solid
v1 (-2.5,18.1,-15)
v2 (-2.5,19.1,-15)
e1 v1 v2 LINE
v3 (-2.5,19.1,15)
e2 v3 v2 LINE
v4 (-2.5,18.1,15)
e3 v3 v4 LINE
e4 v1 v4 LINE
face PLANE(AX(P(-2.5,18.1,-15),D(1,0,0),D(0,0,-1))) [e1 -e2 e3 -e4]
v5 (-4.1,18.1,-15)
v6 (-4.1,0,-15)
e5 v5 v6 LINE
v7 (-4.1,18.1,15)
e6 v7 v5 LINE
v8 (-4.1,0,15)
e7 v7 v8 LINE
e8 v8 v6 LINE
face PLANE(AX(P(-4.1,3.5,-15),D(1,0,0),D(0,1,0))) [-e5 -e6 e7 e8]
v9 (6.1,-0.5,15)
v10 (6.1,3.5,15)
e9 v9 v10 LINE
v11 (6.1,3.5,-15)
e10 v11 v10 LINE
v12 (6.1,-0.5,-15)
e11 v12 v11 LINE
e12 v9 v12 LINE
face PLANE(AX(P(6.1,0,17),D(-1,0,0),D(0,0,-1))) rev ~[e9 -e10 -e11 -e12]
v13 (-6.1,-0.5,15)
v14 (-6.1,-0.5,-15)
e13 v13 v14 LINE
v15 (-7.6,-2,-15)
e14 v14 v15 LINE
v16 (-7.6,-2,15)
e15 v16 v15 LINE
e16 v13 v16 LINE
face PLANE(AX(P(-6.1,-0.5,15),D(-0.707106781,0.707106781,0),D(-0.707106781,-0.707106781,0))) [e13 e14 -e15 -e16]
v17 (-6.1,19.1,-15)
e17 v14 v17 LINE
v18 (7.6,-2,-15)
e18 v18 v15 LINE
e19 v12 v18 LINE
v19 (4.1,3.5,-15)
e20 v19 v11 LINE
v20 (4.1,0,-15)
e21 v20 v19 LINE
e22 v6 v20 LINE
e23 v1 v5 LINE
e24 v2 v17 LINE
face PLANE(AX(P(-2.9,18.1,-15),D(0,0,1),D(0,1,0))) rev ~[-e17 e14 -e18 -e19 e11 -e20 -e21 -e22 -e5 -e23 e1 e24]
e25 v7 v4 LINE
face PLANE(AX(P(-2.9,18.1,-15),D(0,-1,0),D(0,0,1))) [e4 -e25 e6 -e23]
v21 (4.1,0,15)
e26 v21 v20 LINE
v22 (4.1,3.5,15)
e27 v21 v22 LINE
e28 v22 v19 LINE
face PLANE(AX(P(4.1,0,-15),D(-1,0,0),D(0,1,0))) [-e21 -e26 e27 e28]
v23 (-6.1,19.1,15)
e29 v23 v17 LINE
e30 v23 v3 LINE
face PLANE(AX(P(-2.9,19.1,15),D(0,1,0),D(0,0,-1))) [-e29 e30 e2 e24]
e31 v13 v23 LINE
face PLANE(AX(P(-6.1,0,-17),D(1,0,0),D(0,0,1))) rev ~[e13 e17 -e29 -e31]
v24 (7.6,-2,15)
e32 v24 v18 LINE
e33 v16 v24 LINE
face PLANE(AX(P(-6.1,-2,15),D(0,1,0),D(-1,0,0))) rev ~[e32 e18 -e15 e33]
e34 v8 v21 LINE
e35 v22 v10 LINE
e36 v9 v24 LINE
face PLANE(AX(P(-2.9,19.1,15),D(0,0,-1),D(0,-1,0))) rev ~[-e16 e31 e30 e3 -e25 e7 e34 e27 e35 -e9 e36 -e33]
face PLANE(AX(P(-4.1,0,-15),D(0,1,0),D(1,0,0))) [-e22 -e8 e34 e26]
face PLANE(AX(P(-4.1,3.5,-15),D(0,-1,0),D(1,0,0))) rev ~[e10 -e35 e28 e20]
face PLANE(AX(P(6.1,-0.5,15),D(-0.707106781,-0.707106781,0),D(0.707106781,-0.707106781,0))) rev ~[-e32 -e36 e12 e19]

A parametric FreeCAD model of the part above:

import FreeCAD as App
import Part
import Sketcher
Q = App.Units.Quantity

doc = App.newDocument("Part")
params = doc.addObject("Spreadsheet::Sheet", "Params")
for row, (alias, value) in enumerate([
    ("sketch1_height", "34 mm"),
    ("sketch1_height2", "30 mm"),
    ("sketch1_width", "12.2 mm"),
    ("sketch1_width2", "8.2 mm"),
    ("pad1_length", "18.1 mm"),
    ("sketch2_height", "34 mm"),
    ("sketch2_width", "12.2 mm"),
    ("pad2_length", "2 mm"),
    ("sketch3_height", "30 mm"),
    ("sketch3_width", "14.6 mm"),
    ("pocket1_length", "2 mm"),
    ("sketch4_height", "34 mm"),
    ("sketch4_width", "3.2 mm"),
    ("pad3_length", "1 mm"),
    ("sketch5_height", "14.6 mm"),
    ("sketch5_width", "10.2 mm"),
    ("sketch6_width", "8.2 mm"),
    ("sketch6_height", "3.5 mm"),
    ("sketch7_width", "2 mm"),
    ("sketch7_height", "1 mm"),
    ("sketch7_width2", "8.2 mm"),
    ("sketch7_width3", "12.2 mm"),
    ("sketch7_width4", "3.2 mm"),
    ("pocket4_length", "2 mm"),
    ("sketch8_width", "1.5 mm"),
    ("pad4_length", "30 mm"),
    ("sketch9_width", "1 mm"),
    ("sketch9_height", "30 mm"),
    ("pad5_length", "0.4 mm"),
], start=1):
    params.set(f"A{row}", alias)
    params.set(f"B{row}", "=" + value)
    params.setAlias(f"B{row}", alias)

body = doc.addObject("PartDesign::Body", "Body")

sketch1 = body.newObject("Sketcher::SketchObject", "Sketch")
sketch1.AttachmentSupport = (doc.getObject("XZ_Plane"), [""])
sketch1.MapMode = "FlatFace"
sketch1.addGeometry([
    Part.LineSegment(App.Vector(-6, -17, 0), App.Vector(-6, 17, 0)),
    Part.LineSegment(App.Vector(-6, 17, 0), App.Vector(6, 17, 0)),
    Part.LineSegment(App.Vector(6, 17, 0), App.Vector(6, -17, 0)),
    Part.LineSegment(App.Vector(6, -17, 0), App.Vector(-6, -17, 0)),
    Part.LineSegment(App.Vector(4, 15, 0), App.Vector(-4, 15, 0)),
    Part.LineSegment(App.Vector(-4, 15, 0), App.Vector(-4, -15, 0)),
    Part.LineSegment(App.Vector(-4, -15, 0), App.Vector(4, -15, 0)),
    Part.LineSegment(App.Vector(4, -15, 0), App.Vector(4, 15, 0)),
], False)
sketch1.addConstraint([
    Sketcher.Constraint("Coincident", 0, 2, 1, 1),
    Sketcher.Constraint("Coincident", 1, 2, 2, 1),
    Sketcher.Constraint("Coincident", 2, 2, 3, 1),
    Sketcher.Constraint("Coincident", 3, 2, 0, 1),
    Sketcher.Constraint("Coincident", 4, 2, 5, 1),
    Sketcher.Constraint("Coincident", 5, 2, 6, 1),
    Sketcher.Constraint("Coincident", 6, 2, 7, 1),
    Sketcher.Constraint("Coincident", 7, 2, 4, 1),
    Sketcher.Constraint("Vertical", 0),
    Sketcher.Constraint("Horizontal", 1),
    Sketcher.Constraint("Vertical", 2),
    Sketcher.Constraint("Horizontal", 3),
    Sketcher.Constraint("Horizontal", 4),
    Sketcher.Constraint("Vertical", 5),
    Sketcher.Constraint("Horizontal", 6),
    Sketcher.Constraint("Vertical", 7),
    Sketcher.Constraint("Symmetric", 0, 2, 2, 2, -1, 1),
    Sketcher.Constraint("Symmetric", 4, 2, 6, 2, -1, 1),
    Sketcher.Constraint("DistanceY", 0, 1, 0, 2, Q("34 mm")),
    Sketcher.Constraint("DistanceY", 5, 2, 5, 1, Q("30 mm")),
    Sketcher.Constraint("DistanceX", 1, 1, 1, 2, Q("12.2 mm")),
    Sketcher.Constraint("DistanceX", 4, 2, 4, 1, Q("8.2 mm")),
])
sketch1.setExpression("Constraints[18]", "Params.sketch1_height")
sketch1.setExpression("Constraints[19]", "Params.sketch1_height2")
sketch1.setExpression("Constraints[20]", "Params.sketch1_width")
sketch1.setExpression("Constraints[21]", "Params.sketch1_width2")
pad1 = body.newObject("PartDesign::Pad", "Pad")
pad1.Profile = sketch1
pad1.setExpression("Length", "Params.pad1_length")
pad1.Reversed = True

sketch2 = body.newObject("Sketcher::SketchObject", "Sketch001")
sketch2.AttachmentSupport = (doc.getObject("XZ_Plane"), [""])
sketch2.MapMode = "FlatFace"
sketch2.addGeometry([
    Part.LineSegment(App.Vector(6, -17, 0), App.Vector(6, 17, 0)),
    Part.LineSegment(App.Vector(6, 17, 0), App.Vector(-6, 17, 0)),
    Part.LineSegment(App.Vector(-6, 17, 0), App.Vector(-6, -17, 0)),
    Part.LineSegment(App.Vector(-6, -17, 0), App.Vector(6, -17, 0)),
], False)
sketch2.addConstraint([
    Sketcher.Constraint("Coincident", 0, 2, 1, 1),
    Sketcher.Constraint("Coincident", 1, 2, 2, 1),
    Sketcher.Constraint("Coincident", 2, 2, 3, 1),
    Sketcher.Constraint("Coincident", 3, 2, 0, 1),
    Sketcher.Constraint("Vertical", 0),
    Sketcher.Constraint("Horizontal", 1),
    Sketcher.Constraint("Vertical", 2),
    Sketcher.Constraint("Horizontal", 3),
    Sketcher.Constraint("Symmetric", 0, 2, 2, 2, -1, 1),
    Sketcher.Constraint("DistanceY", 0, 1, 0, 2, Q("34 mm")),
    Sketcher.Constraint("DistanceX", 1, 2, 1, 1, Q("12.2 mm")),
])
sketch2.setExpression("Constraints[9]", "Params.sketch2_height")
sketch2.setExpression("Constraints[10]", "Params.sketch2_width")
pad2 = body.newObject("PartDesign::Pad", "Pad001")
pad2.Profile = sketch2
pad2.setExpression("Length", "Params.pad2_length")

sketch3 = body.newObject("Sketcher::SketchObject", "Sketch002")
sketch3.AttachmentSupport = (doc.getObject("YZ_Plane"), [""])
sketch3.MapMode = "FlatFace"
sketch3.AttachmentOffset = App.Placement(App.Vector(0, 0, 6.1), App.Rotation())
sketch3.addGeometry([
    Part.LineSegment(App.Vector(18, 15, 0), App.Vector(4, 15, 0)),
    Part.LineSegment(App.Vector(4, 15, 0), App.Vector(4, -15, 0)),
    Part.LineSegment(App.Vector(4, -15, 0), App.Vector(18, -15, 0)),
    Part.LineSegment(App.Vector(18, -15, 0), App.Vector(18, 15, 0)),
], False)
sketch3.addConstraint([
    Sketcher.Constraint("Coincident", 0, 2, 1, 1),
    Sketcher.Constraint("Coincident", 1, 2, 2, 1),
    Sketcher.Constraint("Coincident", 2, 2, 3, 1),
    Sketcher.Constraint("Coincident", 3, 2, 0, 1),
    Sketcher.Constraint("Horizontal", 0),
    Sketcher.Constraint("Vertical", 1),
    Sketcher.Constraint("Horizontal", 2),
    Sketcher.Constraint("Vertical", 3),
    Sketcher.Constraint("DistanceX", -1, 1, 0, 2, Q("3.5 mm")),
    Sketcher.Constraint("DistanceY", 1, 2, 1, 1, Q("30 mm")),
    Sketcher.Constraint("DistanceX", 0, 2, 0, 1, Q("14.6 mm")),
    Sketcher.Constraint("DistanceY", -1, 1, 0, 2, Q("15 mm")),
])
sketch3.setExpression("Constraints[9]", "Params.sketch3_height")
sketch3.setExpression("Constraints[10]", "Params.sketch3_width")
pocket1 = body.newObject("PartDesign::Pocket", "Pocket")
pocket1.Profile = sketch3
pocket1.setExpression("Length", "Params.pocket1_length")

sketch4 = body.newObject("Sketcher::SketchObject", "Sketch003")
sketch4.AttachmentSupport = (doc.getObject("XZ_Plane"), [""])
sketch4.MapMode = "FlatFace"
sketch4.AttachmentOffset = App.Placement(App.Vector(0, 0, -18.1), App.Rotation())
sketch4.addGeometry([
    Part.LineSegment(App.Vector(-2.9, 17, 0), App.Vector(-2.9, -17, 0)),
    Part.LineSegment(App.Vector(-2.9, -17, 0), App.Vector(-6.1, -17, 0)),
    Part.LineSegment(App.Vector(-6.1, -17, 0), App.Vector(-6.1, 17, 0)),
    Part.LineSegment(App.Vector(-6.1, 17, 0), App.Vector(-2.9, 17, 0)),
], False)
sketch4.addConstraint([
    Sketcher.Constraint("Coincident", 0, 2, 1, 1),
    Sketcher.Constraint("Coincident", 1, 2, 2, 1),
    Sketcher.Constraint("Coincident", 2, 2, 3, 1),
    Sketcher.Constraint("Coincident", 3, 2, 0, 1),
    Sketcher.Constraint("Vertical", 0),
    Sketcher.Constraint("Horizontal", 1),
    Sketcher.Constraint("Vertical", 2),
    Sketcher.Constraint("Horizontal", 3),
    Sketcher.Constraint("DistanceY", 0, 2, 0, 1, Q("34 mm")),
    Sketcher.Constraint("DistanceX", 1, 2, 1, 1, Q("3.2 mm")),
    Sketcher.Constraint("DistanceY", 0, 2, -1, 1, Q("17 mm")),
    Sketcher.Constraint("DistanceX", 0, 2, -1, 1, Q("2.9 mm")),
])
sketch4.setExpression("Constraints[8]", "Params.sketch4_height")
sketch4.setExpression("Constraints[9]", "Params.sketch4_width")
pad3 = body.newObject("PartDesign::Pad", "Pad002")
pad3.Profile = sketch4
pad3.setExpression("Length", "Params.pad3_length")
pad3.Reversed = True

sketch5 = body.newObject("Sketcher::SketchObject", "Sketch004")
sketch5.AttachmentSupport = (doc.getObject("XY_Plane"), [""])
sketch5.MapMode = "FlatFace"
sketch5.AttachmentOffset = App.Placement(App.Vector(0, 0, -15), App.Rotation())
sketch5.addGeometry([
    Part.LineSegment(App.Vector(-4, 4, 0), App.Vector(6, 4, 0)),
    Part.LineSegment(App.Vector(6, 4, 0), App.Vector(6, 18, 0)),
    Part.LineSegment(App.Vector(6, 18, 0), App.Vector(-4, 18, 0)),
    Part.LineSegment(App.Vector(-4, 18, 0), App.Vector(-4, 4, 0)),
], False)
sketch5.addConstraint([
    Sketcher.Constraint("Coincident", 0, 2, 1, 1),
    Sketcher.Constraint("Coincident", 1, 2, 2, 1),
    Sketcher.Constraint("Coincident", 2, 2, 3, 1),
    Sketcher.Constraint("Coincident", 3, 2, 0, 1),
    Sketcher.Constraint("Horizontal", 0),
    Sketcher.Constraint("Vertical", 1),
    Sketcher.Constraint("Horizontal", 2),
    Sketcher.Constraint("Vertical", 3),
    Sketcher.Constraint("DistanceY", 1, 1, 1, 2, Q("14.6 mm")),
    Sketcher.Constraint("DistanceX", 0, 1, 0, 2, Q("10.2 mm")),
    Sketcher.Constraint("DistanceX", -1, 1, 0, 2, Q("6.1 mm")),
    Sketcher.Constraint("DistanceY", -1, 1, 0, 2, Q("3.5 mm")),
])
sketch5.setExpression("Constraints[8]", "Params.sketch5_height")
sketch5.setExpression("Constraints[9]", "Params.sketch5_width")
pocket2 = body.newObject("PartDesign::Pocket", "Pocket001")
pocket2.Profile = sketch5
pocket2.Type = "ThroughAll"
doc.recompute()

mirrored = body.newObject("PartDesign::Mirrored", "Mirrored")
mirrored.Originals = [pocket2]
mirrored.MirrorPlane = (doc.getObject("XY_Plane"), [""])
body.Tip = mirrored

sketch6 = body.newObject("Sketcher::SketchObject", "Sketch005")
sketch6.AttachmentSupport = (doc.getObject("XY_Plane"), [""])
sketch6.MapMode = "FlatFace"
sketch6.AttachmentOffset = App.Placement(App.Vector(0, 0, -15), App.Rotation())
sketch6.addGeometry([
    Part.LineSegment(App.Vector(4.1, 0, 0), App.Vector(4.1, 3.5, 0)),
    Part.LineSegment(App.Vector(4.1, 3.5, 0), App.Vector(-4.1, 3.5, 0)),
    Part.LineSegment(App.Vector(-4.1, 3.5, 0), App.Vector(-4.1, 0, 0)),
    Part.LineSegment(App.Vector(-4.1, 0, 0), App.Vector(4.1, 0, 0)),
], False)
sketch6.addConstraint([
    Sketcher.Constraint("Coincident", 0, 2, 1, 1),
    Sketcher.Constraint("Coincident", 1, 2, 2, 1),
    Sketcher.Constraint("Coincident", 2, 2, 3, 1),
    Sketcher.Constraint("Coincident", 3, 2, 0, 1),
    Sketcher.Constraint("Vertical", 0),
    Sketcher.Constraint("Horizontal", 1),
    Sketcher.Constraint("Vertical", 2),
    Sketcher.Constraint("Horizontal", 3),
    Sketcher.Constraint("Symmetric", 2, 2, 3, 2, -1, 1),
    Sketcher.Constraint("DistanceX", 1, 2, 1, 1, Q("8.2 mm")),
    Sketcher.Constraint("DistanceY", 0, 1, 0, 2, Q("3.5 mm")),
])
sketch6.setExpression("Constraints[9]", "Params.sketch6_width")
sketch6.setExpression("Constraints[10]", "Params.sketch6_height")
pocket3 = body.newObject("PartDesign::Pocket", "Pocket002")
pocket3.Profile = sketch6
pocket3.Type = "ThroughAll"
pocket3.Midplane = True

sketch7 = body.newObject("Sketcher::SketchObject", "Sketch006")
sketch7.AttachmentSupport = (doc.getObject("XY_Plane"), [""])
sketch7.MapMode = "FlatFace"
sketch7.AttachmentOffset = App.Placement(App.Vector(0, 0, -17), App.Rotation())
sketch7.addGeometry([
    Part.LineSegment(App.Vector(-4.1, 0, 0), App.Vector(4.1, 0, 0)),
    Part.LineSegment(App.Vector(4.1, 0, 0), App.Vector(4.1, 3.5, 0)),
    Part.LineSegment(App.Vector(4.1, 3.5, 0), App.Vector(6.1, 3.5, 0)),
    Part.LineSegment(App.Vector(6.1, 3.5, 0), App.Vector(6.1, -2, 0)),
    Part.LineSegment(App.Vector(6.1, -2, 0), App.Vector(-6.1, -2, 0)),
    Part.LineSegment(App.Vector(-6.1, -2, 0), App.Vector(-6.1, 19.1, 0)),
    Part.LineSegment(App.Vector(-6.1, 19.1, 0), App.Vector(-2.9, 19.1, 0)),
    Part.LineSegment(App.Vector(-2.9, 19.1, 0), App.Vector(-2.9, 18.1, 0)),
    Part.LineSegment(App.Vector(-2.9, 18.1, 0), App.Vector(-4.1, 18.1, 0)),
    Part.LineSegment(App.Vector(-4.1, 18.1, 0), App.Vector(-4.1, 0, 0)),
], False)
sketch7.addConstraint([
    Sketcher.Constraint("Coincident", 0, 2, 1, 1),
    Sketcher.Constraint("Coincident", 1, 2, 2, 1),
    Sketcher.Constraint("Coincident", 2, 2, 3, 1),
    Sketcher.Constraint("Coincident", 3, 2, 4, 1),
    Sketcher.Constraint("Coincident", 4, 2, 5, 1),
    Sketcher.Constraint("Coincident", 5, 2, 6, 1),
    Sketcher.Constraint("Coincident", 6, 2, 7, 1),
    Sketcher.Constraint("Coincident", 7, 2, 8, 1),
    Sketcher.Constraint("Coincident", 8, 2, 9, 1),
    Sketcher.Constraint("Coincident", 9, 2, 0, 1),
    Sketcher.Constraint("Horizontal", 0),
    Sketcher.Constraint("Vertical", 1),
    Sketcher.Constraint("Horizontal", 2),
    Sketcher.Constraint("Vertical", 3),
    Sketcher.Constraint("Horizontal", 4),
    Sketcher.Constraint("Vertical", 5),
    Sketcher.Constraint("Horizontal", 6),
    Sketcher.Constraint("Vertical", 7),
    Sketcher.Constraint("Horizontal", 8),
    Sketcher.Constraint("Vertical", 9),
    Sketcher.Constraint("Symmetric", 0, 2, 9, 2, -1, 1),
    Sketcher.Constraint("DistanceX", 2, 1, 2, 2, Q("2 mm")),
    Sketcher.Constraint("DistanceY", 7, 2, 7, 1, Q("1 mm")),
    Sketcher.Constraint("DistanceX", 0, 1, 0, 2, Q("8.2 mm")),
    Sketcher.Constraint("DistanceX", 4, 2, 4, 1, Q("12.2 mm")),
    Sketcher.Constraint("DistanceX", 6, 1, 6, 2, Q("3.2 mm")),
    Sketcher.Constraint("DistanceY", 1, 1, 1, 2, Q("3.5 mm")),
    Sketcher.Constraint("DistanceY", 3, 2, 3, 1, Q("5.5 mm")),
    Sketcher.Constraint("DistanceY", 5, 1, 5, 2, Q("21.1 mm")),
])
sketch7.setExpression("Constraints[21]", "Params.sketch7_width")
sketch7.setExpression("Constraints[22]", "Params.sketch7_height")
sketch7.setExpression("Constraints[23]", "Params.sketch7_width2")
sketch7.setExpression("Constraints[24]", "Params.sketch7_width3")
sketch7.setExpression("Constraints[25]", "Params.sketch7_width4")
pocket4 = body.newObject("PartDesign::Pocket", "Pocket003")
pocket4.Profile = sketch7
pocket4.setExpression("Length", "Params.pocket4_length")
pocket4.Reversed = True
doc.recompute()

mirrored2 = body.newObject("PartDesign::Mirrored", "Mirrored001")
mirrored2.Originals = [pocket4]
mirrored2.MirrorPlane = (doc.getObject("XY_Plane"), [""])
body.Tip = mirrored2

sketch8 = body.newObject("Sketcher::SketchObject", "Sketch007")
sketch8.AttachmentSupport = (doc.getObject("XY_Plane"), [""])
sketch8.MapMode = "FlatFace"
sketch8.AttachmentOffset = App.Placement(App.Vector(0, 0, 15), App.Rotation())
sketch8.addGeometry([
    Part.LineSegment(App.Vector(-7.6, -2, 0), App.Vector(-6.1, -2, 0)),
    Part.LineSegment(App.Vector(-6.1, -2, 0), App.Vector(-6.1, -0.5, 0)),
    Part.LineSegment(App.Vector(-6.1, -0.5, 0), App.Vector(-7.6, -2, 0)),
    Part.LineSegment(App.Vector(6.1, -0.5, 0), App.Vector(6.1, -2, 0)),
    Part.LineSegment(App.Vector(6.1, -2, 0), App.Vector(7.6, -2, 0)),
    Part.LineSegment(App.Vector(7.6, -2, 0), App.Vector(6.1, -0.5, 0)),
], False)
sketch8.addConstraint([
    Sketcher.Constraint("Coincident", 0, 2, 1, 1),
    Sketcher.Constraint("Coincident", 1, 2, 2, 1),
    Sketcher.Constraint("Coincident", 2, 2, 0, 1),
    Sketcher.Constraint("Coincident", 3, 2, 4, 1),
    Sketcher.Constraint("Coincident", 4, 2, 5, 1),
    Sketcher.Constraint("Coincident", 5, 2, 3, 1),
    Sketcher.Constraint("Horizontal", 0),
    Sketcher.Constraint("Vertical", 1),
    Sketcher.Constraint("Vertical", 3),
    Sketcher.Constraint("Horizontal", 4),
    Sketcher.Constraint("Symmetric", 0, 2, 3, 2, -2),
    Sketcher.Constraint("Perpendicular", 2, 5),
    Sketcher.Constraint("Horizontal", 1, 2, 5, 2),
    Sketcher.Constraint("Equal", 0, 4),
    Sketcher.Constraint("DistanceX", 0, 1, 0, 2, Q("1.5 mm")),
    Sketcher.Constraint("DistanceY", 0, 2, -1, 1, Q("2 mm")),
    Sketcher.Constraint("DistanceX", 0, 2, -1, 1, Q("6.1 mm")),
])
sketch8.setExpression("Constraints[14]", "Params.sketch8_width")
pad4 = body.newObject("PartDesign::Pad", "Pad003")
pad4.Profile = sketch8
pad4.setExpression("Length", "Params.pad4_length")
pad4.Reversed = True

sketch9 = body.newObject("Sketcher::SketchObject", "Sketch008")
sketch9.AttachmentSupport = (doc.getObject("YZ_Plane"), [""])
sketch9.MapMode = "FlatFace"
sketch9.AttachmentOffset = App.Placement(App.Vector(0, 0, -2.9), App.Rotation())
sketch9.addGeometry([
    Part.LineSegment(App.Vector(19.1, -15, 0), App.Vector(19.1, 15, 0)),
    Part.LineSegment(App.Vector(19.1, 15, 0), App.Vector(18.1, 15, 0)),
    Part.LineSegment(App.Vector(18.1, 15, 0), App.Vector(18.1, -15, 0)),
    Part.LineSegment(App.Vector(18.1, -15, 0), App.Vector(19.1, -15, 0)),
], False)
sketch9.addConstraint([
    Sketcher.Constraint("Coincident", 0, 2, 1, 1),
    Sketcher.Constraint("Coincident", 1, 2, 2, 1),
    Sketcher.Constraint("Coincident", 2, 2, 3, 1),
    Sketcher.Constraint("Coincident", 3, 2, 0, 1),
    Sketcher.Constraint("Vertical", 0),
    Sketcher.Constraint("Horizontal", 1),
    Sketcher.Constraint("Vertical", 2),
    Sketcher.Constraint("Horizontal", 3),
    Sketcher.Constraint("DistanceX", 1, 2, 1, 1, Q("1 mm")),
    Sketcher.Constraint("DistanceY", 0, 1, 0, 2, Q("30 mm")),
    Sketcher.Constraint("DistanceY", -1, 1, 0, 2, Q("15 mm")),
    Sketcher.Constraint("DistanceX", -1, 1, 0, 2, Q("19.1 mm")),
])
sketch9.setExpression("Constraints[8]", "Params.sketch9_width")
sketch9.setExpression("Constraints[9]", "Params.sketch9_height")
pad5 = body.newObject("PartDesign::Pad", "Pad004")
pad5.Profile = sketch9
pad5.setExpression("Length", "Params.pad5_length")

doc.recompute()
